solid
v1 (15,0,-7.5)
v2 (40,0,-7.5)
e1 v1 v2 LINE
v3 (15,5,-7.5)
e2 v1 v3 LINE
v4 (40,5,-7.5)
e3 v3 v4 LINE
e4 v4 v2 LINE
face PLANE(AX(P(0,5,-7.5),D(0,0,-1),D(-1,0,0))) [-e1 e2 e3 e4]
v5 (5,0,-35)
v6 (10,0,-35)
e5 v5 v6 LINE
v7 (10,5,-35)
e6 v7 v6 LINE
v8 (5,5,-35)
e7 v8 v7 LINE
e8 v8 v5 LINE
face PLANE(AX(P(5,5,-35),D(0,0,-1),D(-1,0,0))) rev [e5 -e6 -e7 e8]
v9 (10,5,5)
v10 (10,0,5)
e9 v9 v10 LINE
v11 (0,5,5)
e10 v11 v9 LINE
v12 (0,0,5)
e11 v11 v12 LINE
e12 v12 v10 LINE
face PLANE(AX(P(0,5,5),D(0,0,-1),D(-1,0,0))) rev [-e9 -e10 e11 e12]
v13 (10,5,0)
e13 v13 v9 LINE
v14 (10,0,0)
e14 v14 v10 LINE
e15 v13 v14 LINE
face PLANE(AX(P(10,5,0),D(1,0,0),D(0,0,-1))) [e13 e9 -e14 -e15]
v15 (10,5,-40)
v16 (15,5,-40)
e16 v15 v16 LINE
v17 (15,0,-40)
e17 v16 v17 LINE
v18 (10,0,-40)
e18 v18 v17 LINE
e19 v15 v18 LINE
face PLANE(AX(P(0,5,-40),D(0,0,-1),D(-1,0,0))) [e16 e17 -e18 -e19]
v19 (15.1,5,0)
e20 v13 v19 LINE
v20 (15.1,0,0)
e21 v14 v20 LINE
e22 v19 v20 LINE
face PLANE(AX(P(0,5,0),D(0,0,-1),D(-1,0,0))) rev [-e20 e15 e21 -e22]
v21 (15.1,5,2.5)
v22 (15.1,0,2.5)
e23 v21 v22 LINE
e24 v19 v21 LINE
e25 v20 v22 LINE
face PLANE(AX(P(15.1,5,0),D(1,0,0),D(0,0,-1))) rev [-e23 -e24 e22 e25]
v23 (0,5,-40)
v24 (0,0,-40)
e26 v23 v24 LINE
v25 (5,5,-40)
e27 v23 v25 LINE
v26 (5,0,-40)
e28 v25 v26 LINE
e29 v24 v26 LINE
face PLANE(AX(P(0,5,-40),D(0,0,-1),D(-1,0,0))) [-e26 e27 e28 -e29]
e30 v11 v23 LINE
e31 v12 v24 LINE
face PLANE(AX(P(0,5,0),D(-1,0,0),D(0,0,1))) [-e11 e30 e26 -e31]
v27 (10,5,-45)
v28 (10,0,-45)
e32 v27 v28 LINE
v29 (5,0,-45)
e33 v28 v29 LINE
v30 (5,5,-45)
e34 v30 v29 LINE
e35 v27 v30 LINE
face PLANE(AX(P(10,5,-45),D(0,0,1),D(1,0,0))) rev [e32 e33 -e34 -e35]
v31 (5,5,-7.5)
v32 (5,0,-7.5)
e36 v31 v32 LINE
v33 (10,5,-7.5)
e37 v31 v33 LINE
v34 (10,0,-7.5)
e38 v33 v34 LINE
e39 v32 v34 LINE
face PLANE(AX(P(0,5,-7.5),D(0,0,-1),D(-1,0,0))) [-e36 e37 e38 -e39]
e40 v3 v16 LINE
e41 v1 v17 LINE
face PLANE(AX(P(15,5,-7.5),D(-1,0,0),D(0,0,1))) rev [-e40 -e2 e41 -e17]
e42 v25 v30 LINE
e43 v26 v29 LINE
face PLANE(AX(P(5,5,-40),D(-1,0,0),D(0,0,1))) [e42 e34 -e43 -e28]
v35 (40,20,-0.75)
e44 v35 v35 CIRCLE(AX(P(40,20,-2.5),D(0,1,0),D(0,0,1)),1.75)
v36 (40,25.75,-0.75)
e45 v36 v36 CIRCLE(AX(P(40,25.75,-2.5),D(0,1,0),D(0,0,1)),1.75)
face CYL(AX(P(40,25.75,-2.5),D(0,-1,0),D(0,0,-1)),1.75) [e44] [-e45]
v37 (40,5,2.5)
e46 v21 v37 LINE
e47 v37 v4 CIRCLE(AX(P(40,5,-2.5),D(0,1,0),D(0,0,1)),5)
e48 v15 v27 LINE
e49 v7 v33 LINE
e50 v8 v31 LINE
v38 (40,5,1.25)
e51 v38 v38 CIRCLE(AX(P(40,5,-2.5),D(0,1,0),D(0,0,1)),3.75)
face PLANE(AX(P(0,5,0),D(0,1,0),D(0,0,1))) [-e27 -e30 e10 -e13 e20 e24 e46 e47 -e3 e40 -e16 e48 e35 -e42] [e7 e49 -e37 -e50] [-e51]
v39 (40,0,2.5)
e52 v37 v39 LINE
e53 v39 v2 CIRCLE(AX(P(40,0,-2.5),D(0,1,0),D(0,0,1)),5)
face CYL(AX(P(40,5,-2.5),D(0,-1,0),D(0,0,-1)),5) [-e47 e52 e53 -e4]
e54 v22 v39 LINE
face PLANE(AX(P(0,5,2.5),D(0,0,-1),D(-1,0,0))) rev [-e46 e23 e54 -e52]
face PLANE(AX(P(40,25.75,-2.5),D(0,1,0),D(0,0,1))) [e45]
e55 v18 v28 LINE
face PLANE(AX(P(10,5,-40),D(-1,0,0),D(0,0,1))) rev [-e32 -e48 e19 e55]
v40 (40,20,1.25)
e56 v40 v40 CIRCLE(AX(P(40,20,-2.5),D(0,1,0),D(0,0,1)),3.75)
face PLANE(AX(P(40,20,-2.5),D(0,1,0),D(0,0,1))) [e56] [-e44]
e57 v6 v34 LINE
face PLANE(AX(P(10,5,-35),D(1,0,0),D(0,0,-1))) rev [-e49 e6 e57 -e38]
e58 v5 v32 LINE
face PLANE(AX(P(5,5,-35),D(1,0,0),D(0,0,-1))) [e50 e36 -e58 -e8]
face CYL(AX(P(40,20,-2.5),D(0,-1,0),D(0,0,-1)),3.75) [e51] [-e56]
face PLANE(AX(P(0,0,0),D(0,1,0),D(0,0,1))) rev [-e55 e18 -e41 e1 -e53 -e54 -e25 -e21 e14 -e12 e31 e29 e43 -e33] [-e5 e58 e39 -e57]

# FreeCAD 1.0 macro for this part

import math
import FreeCAD as App
import Part
import Sketcher


def add_polygon(sketch, points):
    """Adds a closed chain of lines whose ends are joined by coincident constraints."""
    first, n = sketch.GeometryCount, len(points)
    for a, b in zip(points, points[1:] + points[:1]):
        sketch.addGeometry(Part.LineSegment(App.Vector(*a, 0), App.Vector(*b, 0)), False)
    for i in range(n):
        sketch.addConstraint(Sketcher.Constraint("Coincident", first + i, 2, first + (i + 1) % n, 1))

doc = App.newDocument("Part")
body = doc.addObject("PartDesign::Body", "Body")

# Sketch on XZ plane
sketch1 = body.newObject("Sketcher::SketchObject", "Sketch")
sketch1.AttachmentSupport = (doc.getObject("XZ_Plane"), [""])
sketch1.MapMode = "FlatFace"
sketch1.addGeometry(Part.LineSegment(App.Vector(0, -40, 0), App.Vector(0, 5, 0)), False)  # 0
sketch1.addGeometry(Part.LineSegment(App.Vector(0, 5, 0), App.Vector(10, 5, 0)), False)  # 1
sketch1.addGeometry(Part.LineSegment(App.Vector(10, 5, 0), App.Vector(10, 0, 0)), False)  # 2
sketch1.addGeometry(Part.LineSegment(App.Vector(10, 0, 0), App.Vector(15.1, 0, 0)), False)  # 3
sketch1.addGeometry(Part.LineSegment(App.Vector(15.1, 0, 0), App.Vector(15.1, 2.5, 0)), False)  # 4
sketch1.addGeometry(Part.LineSegment(App.Vector(15.1, 2.5, 0), App.Vector(40, 2.5, 0)), False)  # 5
sketch1.addGeometry(Part.ArcOfCircle(Part.Circle(App.Vector(40, -2.5, 0), App.Vector(0, 0, 1), 5), math.radians(-90), math.radians(90)), False)  # 6
sketch1.addGeometry(Part.LineSegment(App.Vector(40, -7.5, 0), App.Vector(15, -7.5, 0)), False)  # 7
sketch1.addGeometry(Part.LineSegment(App.Vector(15, -7.5, 0), App.Vector(15, -40, 0)), False)  # 8
sketch1.addGeometry(Part.LineSegment(App.Vector(15, -40, 0), App.Vector(10, -40, 0)), False)  # 9
sketch1.addGeometry(Part.LineSegment(App.Vector(10, -40, 0), App.Vector(10, -45, 0)), False)  # 10
sketch1.addGeometry(Part.LineSegment(App.Vector(10, -45, 0), App.Vector(5, -45, 0)), False)  # 11
sketch1.addGeometry(Part.LineSegment(App.Vector(5, -45, 0), App.Vector(5, -40, 0)), False)  # 12
sketch1.addGeometry(Part.LineSegment(App.Vector(5, -40, 0), App.Vector(0, -40, 0)), False)  # 13
add_polygon(sketch1, [(10, -7.5), (5, -7.5), (5, -35), (10, -35)])  # lines 14-17
sketch1.addConstraint(Sketcher.Constraint("Coincident", 0, 2, 1, 1))
sketch1.addConstraint(Sketcher.Constraint("Coincident", 1, 2, 2, 1))
sketch1.addConstraint(Sketcher.Constraint("Coincident", 2, 2, 3, 1))
sketch1.addConstraint(Sketcher.Constraint("Coincident", 3, 2, 4, 1))
sketch1.addConstraint(Sketcher.Constraint("Coincident", 4, 2, 5, 1))
sketch1.addConstraint(Sketcher.Constraint("Tangent", 5, 2, 6, 2))
sketch1.addConstraint(Sketcher.Constraint("Tangent", 6, 1, 7, 1))
sketch1.addConstraint(Sketcher.Constraint("Coincident", 7, 2, 8, 1))
sketch1.addConstraint(Sketcher.Constraint("Coincident", 8, 2, 9, 1))
sketch1.addConstraint(Sketcher.Constraint("Coincident", 9, 2, 10, 1))
sketch1.addConstraint(Sketcher.Constraint("Coincident", 10, 2, 11, 1))
sketch1.addConstraint(Sketcher.Constraint("Coincident", 11, 2, 12, 1))
sketch1.addConstraint(Sketcher.Constraint("Coincident", 12, 2, 13, 1))
sketch1.addConstraint(Sketcher.Constraint("Coincident", 13, 2, 0, 1))
sketch1.addConstraint(Sketcher.Constraint("Vertical", 0))
sketch1.addConstraint(Sketcher.Constraint("Horizontal", 1))
sketch1.addConstraint(Sketcher.Constraint("Vertical", 2))
sketch1.addConstraint(Sketcher.Constraint("Horizontal", 3))
sketch1.addConstraint(Sketcher.Constraint("Vertical", 4))
sketch1.addConstraint(Sketcher.Constraint("Horizontal", 5))
sketch1.addConstraint(Sketcher.Constraint("Horizontal", 7))
sketch1.addConstraint(Sketcher.Constraint("Vertical", 8))
sketch1.addConstraint(Sketcher.Constraint("Horizontal", 9))
sketch1.addConstraint(Sketcher.Constraint("Vertical", 10))
sketch1.addConstraint(Sketcher.Constraint("Horizontal", 11))
sketch1.addConstraint(Sketcher.Constraint("Vertical", 12))
sketch1.addConstraint(Sketcher.Constraint("Horizontal", 13))
sketch1.addConstraint(Sketcher.Constraint("Horizontal", 14))
sketch1.addConstraint(Sketcher.Constraint("Vertical", 15))
sketch1.addConstraint(Sketcher.Constraint("Horizontal", 16))
sketch1.addConstraint(Sketcher.Constraint("Vertical", 17))
sketch1.addConstraint(Sketcher.Constraint("PointOnObject", 0, 2, -2))
sketch1.addConstraint(Sketcher.Constraint("PointOnObject", 2, 2, -1))
sketch1.addConstraint(Sketcher.Constraint("Horizontal", 9, 2, 12, 2))
sketch1.addConstraint(Sketcher.Constraint("Horizontal", 7, 2, 14, 2))
sketch1.addConstraint(Sketcher.Constraint("Vertical", 2, 2, 9, 2))
sketch1.addConstraint(Sketcher.Constraint("Vertical", 12, 2, 14, 2))
sketch1.addConstraint(Sketcher.Constraint("Vertical", 10, 2, 16, 2))
sketch1.addConstraint(Sketcher.Constraint("Equal", 9, 11))
sketch1.addConstraint(Sketcher.Constraint("Equal", 11, 13))
sketch1.addConstraint(Sketcher.Constraint("Equal", 16, 2))
sketch1.addConstraint(Sketcher.Constraint("Equal", 2, 10))
sketch1.addConstraint(Sketcher.Constraint("Radius", 6, 5.0))
sketch1.addConstraint(Sketcher.Constraint("DistanceX", 1, 1, 1, 2, 10.0))
sketch1.addConstraint(Sketcher.Constraint("DistanceX", 7, 2, 7, 1, 25.0))
sketch1.addConstraint(Sketcher.Constraint("DistanceY", 0, 1, 0, 2, 45.0))
sketch1.addConstraint(Sketcher.Constraint("DistanceX", 3, 1, 3, 2, 5.1))
sketch1.addConstraint(Sketcher.Constraint("DistanceY", 4, 1, 4, 2, 2.5))
sketch1.addConstraint(Sketcher.Constraint("DistanceY", 15, 2, 15, 1, 27.5))
pad1 = body.newObject("PartDesign::Pad", "Pad")
pad1.Profile = sketch1
pad1.Length = 5
pad1.Reversed = True

# Sketch on XZ plane
sketch2 = body.newObject("Sketcher::SketchObject", "Sketch001")
sketch2.AttachmentSupport = (doc.getObject("XZ_Plane"), [""])
sketch2.MapMode = "FlatFace"
sketch2.AttachmentOffset = App.Placement(App.Vector(0, 0, -5), App.Rotation())
sketch2.addGeometry(Part.Circle(App.Vector(40, -2.5, 0), App.Vector(0, 0, 1), 3.8), False)
sketch2.addConstraint(Sketcher.Constraint("Diameter", 0, 7.5))
sketch2.addConstraint(Sketcher.Constraint("DistanceX", -1, 1, 0, 3, 40.0))
sketch2.addConstraint(Sketcher.Constraint("DistanceY", 0, 3, -1, 1, 2.5))
pad2 = body.newObject("PartDesign::Pad", "Pad001")
pad2.Profile = sketch2
pad2.Length = 15
pad2.Reversed = True

# Sketch on XZ plane
sketch3 = body.newObject("Sketcher::SketchObject", "Sketch002")
sketch3.AttachmentSupport = (doc.getObject("XZ_Plane"), [""])
sketch3.MapMode = "FlatFace"
sketch3.AttachmentOffset = App.Placement(App.Vector(0, 0, -20), App.Rotation())
sketch3.addGeometry(Part.Circle(App.Vector(40, -2.5, 0), App.Vector(0, 0, 1), 1.8), False)
sketch3.addConstraint(Sketcher.Constraint("Diameter", 0, 3.5))
sketch3.addConstraint(Sketcher.Constraint("DistanceX", -1, 1, 0, 3, 40.0))
sketch3.addConstraint(Sketcher.Constraint("DistanceY", 0, 3, -1, 1, 2.5))
pad3 = body.newObject("PartDesign::Pad", "Pad002")
pad3.Profile = sketch3
pad3.Length = 5.75
pad3.Reversed = True

doc.recompute()
